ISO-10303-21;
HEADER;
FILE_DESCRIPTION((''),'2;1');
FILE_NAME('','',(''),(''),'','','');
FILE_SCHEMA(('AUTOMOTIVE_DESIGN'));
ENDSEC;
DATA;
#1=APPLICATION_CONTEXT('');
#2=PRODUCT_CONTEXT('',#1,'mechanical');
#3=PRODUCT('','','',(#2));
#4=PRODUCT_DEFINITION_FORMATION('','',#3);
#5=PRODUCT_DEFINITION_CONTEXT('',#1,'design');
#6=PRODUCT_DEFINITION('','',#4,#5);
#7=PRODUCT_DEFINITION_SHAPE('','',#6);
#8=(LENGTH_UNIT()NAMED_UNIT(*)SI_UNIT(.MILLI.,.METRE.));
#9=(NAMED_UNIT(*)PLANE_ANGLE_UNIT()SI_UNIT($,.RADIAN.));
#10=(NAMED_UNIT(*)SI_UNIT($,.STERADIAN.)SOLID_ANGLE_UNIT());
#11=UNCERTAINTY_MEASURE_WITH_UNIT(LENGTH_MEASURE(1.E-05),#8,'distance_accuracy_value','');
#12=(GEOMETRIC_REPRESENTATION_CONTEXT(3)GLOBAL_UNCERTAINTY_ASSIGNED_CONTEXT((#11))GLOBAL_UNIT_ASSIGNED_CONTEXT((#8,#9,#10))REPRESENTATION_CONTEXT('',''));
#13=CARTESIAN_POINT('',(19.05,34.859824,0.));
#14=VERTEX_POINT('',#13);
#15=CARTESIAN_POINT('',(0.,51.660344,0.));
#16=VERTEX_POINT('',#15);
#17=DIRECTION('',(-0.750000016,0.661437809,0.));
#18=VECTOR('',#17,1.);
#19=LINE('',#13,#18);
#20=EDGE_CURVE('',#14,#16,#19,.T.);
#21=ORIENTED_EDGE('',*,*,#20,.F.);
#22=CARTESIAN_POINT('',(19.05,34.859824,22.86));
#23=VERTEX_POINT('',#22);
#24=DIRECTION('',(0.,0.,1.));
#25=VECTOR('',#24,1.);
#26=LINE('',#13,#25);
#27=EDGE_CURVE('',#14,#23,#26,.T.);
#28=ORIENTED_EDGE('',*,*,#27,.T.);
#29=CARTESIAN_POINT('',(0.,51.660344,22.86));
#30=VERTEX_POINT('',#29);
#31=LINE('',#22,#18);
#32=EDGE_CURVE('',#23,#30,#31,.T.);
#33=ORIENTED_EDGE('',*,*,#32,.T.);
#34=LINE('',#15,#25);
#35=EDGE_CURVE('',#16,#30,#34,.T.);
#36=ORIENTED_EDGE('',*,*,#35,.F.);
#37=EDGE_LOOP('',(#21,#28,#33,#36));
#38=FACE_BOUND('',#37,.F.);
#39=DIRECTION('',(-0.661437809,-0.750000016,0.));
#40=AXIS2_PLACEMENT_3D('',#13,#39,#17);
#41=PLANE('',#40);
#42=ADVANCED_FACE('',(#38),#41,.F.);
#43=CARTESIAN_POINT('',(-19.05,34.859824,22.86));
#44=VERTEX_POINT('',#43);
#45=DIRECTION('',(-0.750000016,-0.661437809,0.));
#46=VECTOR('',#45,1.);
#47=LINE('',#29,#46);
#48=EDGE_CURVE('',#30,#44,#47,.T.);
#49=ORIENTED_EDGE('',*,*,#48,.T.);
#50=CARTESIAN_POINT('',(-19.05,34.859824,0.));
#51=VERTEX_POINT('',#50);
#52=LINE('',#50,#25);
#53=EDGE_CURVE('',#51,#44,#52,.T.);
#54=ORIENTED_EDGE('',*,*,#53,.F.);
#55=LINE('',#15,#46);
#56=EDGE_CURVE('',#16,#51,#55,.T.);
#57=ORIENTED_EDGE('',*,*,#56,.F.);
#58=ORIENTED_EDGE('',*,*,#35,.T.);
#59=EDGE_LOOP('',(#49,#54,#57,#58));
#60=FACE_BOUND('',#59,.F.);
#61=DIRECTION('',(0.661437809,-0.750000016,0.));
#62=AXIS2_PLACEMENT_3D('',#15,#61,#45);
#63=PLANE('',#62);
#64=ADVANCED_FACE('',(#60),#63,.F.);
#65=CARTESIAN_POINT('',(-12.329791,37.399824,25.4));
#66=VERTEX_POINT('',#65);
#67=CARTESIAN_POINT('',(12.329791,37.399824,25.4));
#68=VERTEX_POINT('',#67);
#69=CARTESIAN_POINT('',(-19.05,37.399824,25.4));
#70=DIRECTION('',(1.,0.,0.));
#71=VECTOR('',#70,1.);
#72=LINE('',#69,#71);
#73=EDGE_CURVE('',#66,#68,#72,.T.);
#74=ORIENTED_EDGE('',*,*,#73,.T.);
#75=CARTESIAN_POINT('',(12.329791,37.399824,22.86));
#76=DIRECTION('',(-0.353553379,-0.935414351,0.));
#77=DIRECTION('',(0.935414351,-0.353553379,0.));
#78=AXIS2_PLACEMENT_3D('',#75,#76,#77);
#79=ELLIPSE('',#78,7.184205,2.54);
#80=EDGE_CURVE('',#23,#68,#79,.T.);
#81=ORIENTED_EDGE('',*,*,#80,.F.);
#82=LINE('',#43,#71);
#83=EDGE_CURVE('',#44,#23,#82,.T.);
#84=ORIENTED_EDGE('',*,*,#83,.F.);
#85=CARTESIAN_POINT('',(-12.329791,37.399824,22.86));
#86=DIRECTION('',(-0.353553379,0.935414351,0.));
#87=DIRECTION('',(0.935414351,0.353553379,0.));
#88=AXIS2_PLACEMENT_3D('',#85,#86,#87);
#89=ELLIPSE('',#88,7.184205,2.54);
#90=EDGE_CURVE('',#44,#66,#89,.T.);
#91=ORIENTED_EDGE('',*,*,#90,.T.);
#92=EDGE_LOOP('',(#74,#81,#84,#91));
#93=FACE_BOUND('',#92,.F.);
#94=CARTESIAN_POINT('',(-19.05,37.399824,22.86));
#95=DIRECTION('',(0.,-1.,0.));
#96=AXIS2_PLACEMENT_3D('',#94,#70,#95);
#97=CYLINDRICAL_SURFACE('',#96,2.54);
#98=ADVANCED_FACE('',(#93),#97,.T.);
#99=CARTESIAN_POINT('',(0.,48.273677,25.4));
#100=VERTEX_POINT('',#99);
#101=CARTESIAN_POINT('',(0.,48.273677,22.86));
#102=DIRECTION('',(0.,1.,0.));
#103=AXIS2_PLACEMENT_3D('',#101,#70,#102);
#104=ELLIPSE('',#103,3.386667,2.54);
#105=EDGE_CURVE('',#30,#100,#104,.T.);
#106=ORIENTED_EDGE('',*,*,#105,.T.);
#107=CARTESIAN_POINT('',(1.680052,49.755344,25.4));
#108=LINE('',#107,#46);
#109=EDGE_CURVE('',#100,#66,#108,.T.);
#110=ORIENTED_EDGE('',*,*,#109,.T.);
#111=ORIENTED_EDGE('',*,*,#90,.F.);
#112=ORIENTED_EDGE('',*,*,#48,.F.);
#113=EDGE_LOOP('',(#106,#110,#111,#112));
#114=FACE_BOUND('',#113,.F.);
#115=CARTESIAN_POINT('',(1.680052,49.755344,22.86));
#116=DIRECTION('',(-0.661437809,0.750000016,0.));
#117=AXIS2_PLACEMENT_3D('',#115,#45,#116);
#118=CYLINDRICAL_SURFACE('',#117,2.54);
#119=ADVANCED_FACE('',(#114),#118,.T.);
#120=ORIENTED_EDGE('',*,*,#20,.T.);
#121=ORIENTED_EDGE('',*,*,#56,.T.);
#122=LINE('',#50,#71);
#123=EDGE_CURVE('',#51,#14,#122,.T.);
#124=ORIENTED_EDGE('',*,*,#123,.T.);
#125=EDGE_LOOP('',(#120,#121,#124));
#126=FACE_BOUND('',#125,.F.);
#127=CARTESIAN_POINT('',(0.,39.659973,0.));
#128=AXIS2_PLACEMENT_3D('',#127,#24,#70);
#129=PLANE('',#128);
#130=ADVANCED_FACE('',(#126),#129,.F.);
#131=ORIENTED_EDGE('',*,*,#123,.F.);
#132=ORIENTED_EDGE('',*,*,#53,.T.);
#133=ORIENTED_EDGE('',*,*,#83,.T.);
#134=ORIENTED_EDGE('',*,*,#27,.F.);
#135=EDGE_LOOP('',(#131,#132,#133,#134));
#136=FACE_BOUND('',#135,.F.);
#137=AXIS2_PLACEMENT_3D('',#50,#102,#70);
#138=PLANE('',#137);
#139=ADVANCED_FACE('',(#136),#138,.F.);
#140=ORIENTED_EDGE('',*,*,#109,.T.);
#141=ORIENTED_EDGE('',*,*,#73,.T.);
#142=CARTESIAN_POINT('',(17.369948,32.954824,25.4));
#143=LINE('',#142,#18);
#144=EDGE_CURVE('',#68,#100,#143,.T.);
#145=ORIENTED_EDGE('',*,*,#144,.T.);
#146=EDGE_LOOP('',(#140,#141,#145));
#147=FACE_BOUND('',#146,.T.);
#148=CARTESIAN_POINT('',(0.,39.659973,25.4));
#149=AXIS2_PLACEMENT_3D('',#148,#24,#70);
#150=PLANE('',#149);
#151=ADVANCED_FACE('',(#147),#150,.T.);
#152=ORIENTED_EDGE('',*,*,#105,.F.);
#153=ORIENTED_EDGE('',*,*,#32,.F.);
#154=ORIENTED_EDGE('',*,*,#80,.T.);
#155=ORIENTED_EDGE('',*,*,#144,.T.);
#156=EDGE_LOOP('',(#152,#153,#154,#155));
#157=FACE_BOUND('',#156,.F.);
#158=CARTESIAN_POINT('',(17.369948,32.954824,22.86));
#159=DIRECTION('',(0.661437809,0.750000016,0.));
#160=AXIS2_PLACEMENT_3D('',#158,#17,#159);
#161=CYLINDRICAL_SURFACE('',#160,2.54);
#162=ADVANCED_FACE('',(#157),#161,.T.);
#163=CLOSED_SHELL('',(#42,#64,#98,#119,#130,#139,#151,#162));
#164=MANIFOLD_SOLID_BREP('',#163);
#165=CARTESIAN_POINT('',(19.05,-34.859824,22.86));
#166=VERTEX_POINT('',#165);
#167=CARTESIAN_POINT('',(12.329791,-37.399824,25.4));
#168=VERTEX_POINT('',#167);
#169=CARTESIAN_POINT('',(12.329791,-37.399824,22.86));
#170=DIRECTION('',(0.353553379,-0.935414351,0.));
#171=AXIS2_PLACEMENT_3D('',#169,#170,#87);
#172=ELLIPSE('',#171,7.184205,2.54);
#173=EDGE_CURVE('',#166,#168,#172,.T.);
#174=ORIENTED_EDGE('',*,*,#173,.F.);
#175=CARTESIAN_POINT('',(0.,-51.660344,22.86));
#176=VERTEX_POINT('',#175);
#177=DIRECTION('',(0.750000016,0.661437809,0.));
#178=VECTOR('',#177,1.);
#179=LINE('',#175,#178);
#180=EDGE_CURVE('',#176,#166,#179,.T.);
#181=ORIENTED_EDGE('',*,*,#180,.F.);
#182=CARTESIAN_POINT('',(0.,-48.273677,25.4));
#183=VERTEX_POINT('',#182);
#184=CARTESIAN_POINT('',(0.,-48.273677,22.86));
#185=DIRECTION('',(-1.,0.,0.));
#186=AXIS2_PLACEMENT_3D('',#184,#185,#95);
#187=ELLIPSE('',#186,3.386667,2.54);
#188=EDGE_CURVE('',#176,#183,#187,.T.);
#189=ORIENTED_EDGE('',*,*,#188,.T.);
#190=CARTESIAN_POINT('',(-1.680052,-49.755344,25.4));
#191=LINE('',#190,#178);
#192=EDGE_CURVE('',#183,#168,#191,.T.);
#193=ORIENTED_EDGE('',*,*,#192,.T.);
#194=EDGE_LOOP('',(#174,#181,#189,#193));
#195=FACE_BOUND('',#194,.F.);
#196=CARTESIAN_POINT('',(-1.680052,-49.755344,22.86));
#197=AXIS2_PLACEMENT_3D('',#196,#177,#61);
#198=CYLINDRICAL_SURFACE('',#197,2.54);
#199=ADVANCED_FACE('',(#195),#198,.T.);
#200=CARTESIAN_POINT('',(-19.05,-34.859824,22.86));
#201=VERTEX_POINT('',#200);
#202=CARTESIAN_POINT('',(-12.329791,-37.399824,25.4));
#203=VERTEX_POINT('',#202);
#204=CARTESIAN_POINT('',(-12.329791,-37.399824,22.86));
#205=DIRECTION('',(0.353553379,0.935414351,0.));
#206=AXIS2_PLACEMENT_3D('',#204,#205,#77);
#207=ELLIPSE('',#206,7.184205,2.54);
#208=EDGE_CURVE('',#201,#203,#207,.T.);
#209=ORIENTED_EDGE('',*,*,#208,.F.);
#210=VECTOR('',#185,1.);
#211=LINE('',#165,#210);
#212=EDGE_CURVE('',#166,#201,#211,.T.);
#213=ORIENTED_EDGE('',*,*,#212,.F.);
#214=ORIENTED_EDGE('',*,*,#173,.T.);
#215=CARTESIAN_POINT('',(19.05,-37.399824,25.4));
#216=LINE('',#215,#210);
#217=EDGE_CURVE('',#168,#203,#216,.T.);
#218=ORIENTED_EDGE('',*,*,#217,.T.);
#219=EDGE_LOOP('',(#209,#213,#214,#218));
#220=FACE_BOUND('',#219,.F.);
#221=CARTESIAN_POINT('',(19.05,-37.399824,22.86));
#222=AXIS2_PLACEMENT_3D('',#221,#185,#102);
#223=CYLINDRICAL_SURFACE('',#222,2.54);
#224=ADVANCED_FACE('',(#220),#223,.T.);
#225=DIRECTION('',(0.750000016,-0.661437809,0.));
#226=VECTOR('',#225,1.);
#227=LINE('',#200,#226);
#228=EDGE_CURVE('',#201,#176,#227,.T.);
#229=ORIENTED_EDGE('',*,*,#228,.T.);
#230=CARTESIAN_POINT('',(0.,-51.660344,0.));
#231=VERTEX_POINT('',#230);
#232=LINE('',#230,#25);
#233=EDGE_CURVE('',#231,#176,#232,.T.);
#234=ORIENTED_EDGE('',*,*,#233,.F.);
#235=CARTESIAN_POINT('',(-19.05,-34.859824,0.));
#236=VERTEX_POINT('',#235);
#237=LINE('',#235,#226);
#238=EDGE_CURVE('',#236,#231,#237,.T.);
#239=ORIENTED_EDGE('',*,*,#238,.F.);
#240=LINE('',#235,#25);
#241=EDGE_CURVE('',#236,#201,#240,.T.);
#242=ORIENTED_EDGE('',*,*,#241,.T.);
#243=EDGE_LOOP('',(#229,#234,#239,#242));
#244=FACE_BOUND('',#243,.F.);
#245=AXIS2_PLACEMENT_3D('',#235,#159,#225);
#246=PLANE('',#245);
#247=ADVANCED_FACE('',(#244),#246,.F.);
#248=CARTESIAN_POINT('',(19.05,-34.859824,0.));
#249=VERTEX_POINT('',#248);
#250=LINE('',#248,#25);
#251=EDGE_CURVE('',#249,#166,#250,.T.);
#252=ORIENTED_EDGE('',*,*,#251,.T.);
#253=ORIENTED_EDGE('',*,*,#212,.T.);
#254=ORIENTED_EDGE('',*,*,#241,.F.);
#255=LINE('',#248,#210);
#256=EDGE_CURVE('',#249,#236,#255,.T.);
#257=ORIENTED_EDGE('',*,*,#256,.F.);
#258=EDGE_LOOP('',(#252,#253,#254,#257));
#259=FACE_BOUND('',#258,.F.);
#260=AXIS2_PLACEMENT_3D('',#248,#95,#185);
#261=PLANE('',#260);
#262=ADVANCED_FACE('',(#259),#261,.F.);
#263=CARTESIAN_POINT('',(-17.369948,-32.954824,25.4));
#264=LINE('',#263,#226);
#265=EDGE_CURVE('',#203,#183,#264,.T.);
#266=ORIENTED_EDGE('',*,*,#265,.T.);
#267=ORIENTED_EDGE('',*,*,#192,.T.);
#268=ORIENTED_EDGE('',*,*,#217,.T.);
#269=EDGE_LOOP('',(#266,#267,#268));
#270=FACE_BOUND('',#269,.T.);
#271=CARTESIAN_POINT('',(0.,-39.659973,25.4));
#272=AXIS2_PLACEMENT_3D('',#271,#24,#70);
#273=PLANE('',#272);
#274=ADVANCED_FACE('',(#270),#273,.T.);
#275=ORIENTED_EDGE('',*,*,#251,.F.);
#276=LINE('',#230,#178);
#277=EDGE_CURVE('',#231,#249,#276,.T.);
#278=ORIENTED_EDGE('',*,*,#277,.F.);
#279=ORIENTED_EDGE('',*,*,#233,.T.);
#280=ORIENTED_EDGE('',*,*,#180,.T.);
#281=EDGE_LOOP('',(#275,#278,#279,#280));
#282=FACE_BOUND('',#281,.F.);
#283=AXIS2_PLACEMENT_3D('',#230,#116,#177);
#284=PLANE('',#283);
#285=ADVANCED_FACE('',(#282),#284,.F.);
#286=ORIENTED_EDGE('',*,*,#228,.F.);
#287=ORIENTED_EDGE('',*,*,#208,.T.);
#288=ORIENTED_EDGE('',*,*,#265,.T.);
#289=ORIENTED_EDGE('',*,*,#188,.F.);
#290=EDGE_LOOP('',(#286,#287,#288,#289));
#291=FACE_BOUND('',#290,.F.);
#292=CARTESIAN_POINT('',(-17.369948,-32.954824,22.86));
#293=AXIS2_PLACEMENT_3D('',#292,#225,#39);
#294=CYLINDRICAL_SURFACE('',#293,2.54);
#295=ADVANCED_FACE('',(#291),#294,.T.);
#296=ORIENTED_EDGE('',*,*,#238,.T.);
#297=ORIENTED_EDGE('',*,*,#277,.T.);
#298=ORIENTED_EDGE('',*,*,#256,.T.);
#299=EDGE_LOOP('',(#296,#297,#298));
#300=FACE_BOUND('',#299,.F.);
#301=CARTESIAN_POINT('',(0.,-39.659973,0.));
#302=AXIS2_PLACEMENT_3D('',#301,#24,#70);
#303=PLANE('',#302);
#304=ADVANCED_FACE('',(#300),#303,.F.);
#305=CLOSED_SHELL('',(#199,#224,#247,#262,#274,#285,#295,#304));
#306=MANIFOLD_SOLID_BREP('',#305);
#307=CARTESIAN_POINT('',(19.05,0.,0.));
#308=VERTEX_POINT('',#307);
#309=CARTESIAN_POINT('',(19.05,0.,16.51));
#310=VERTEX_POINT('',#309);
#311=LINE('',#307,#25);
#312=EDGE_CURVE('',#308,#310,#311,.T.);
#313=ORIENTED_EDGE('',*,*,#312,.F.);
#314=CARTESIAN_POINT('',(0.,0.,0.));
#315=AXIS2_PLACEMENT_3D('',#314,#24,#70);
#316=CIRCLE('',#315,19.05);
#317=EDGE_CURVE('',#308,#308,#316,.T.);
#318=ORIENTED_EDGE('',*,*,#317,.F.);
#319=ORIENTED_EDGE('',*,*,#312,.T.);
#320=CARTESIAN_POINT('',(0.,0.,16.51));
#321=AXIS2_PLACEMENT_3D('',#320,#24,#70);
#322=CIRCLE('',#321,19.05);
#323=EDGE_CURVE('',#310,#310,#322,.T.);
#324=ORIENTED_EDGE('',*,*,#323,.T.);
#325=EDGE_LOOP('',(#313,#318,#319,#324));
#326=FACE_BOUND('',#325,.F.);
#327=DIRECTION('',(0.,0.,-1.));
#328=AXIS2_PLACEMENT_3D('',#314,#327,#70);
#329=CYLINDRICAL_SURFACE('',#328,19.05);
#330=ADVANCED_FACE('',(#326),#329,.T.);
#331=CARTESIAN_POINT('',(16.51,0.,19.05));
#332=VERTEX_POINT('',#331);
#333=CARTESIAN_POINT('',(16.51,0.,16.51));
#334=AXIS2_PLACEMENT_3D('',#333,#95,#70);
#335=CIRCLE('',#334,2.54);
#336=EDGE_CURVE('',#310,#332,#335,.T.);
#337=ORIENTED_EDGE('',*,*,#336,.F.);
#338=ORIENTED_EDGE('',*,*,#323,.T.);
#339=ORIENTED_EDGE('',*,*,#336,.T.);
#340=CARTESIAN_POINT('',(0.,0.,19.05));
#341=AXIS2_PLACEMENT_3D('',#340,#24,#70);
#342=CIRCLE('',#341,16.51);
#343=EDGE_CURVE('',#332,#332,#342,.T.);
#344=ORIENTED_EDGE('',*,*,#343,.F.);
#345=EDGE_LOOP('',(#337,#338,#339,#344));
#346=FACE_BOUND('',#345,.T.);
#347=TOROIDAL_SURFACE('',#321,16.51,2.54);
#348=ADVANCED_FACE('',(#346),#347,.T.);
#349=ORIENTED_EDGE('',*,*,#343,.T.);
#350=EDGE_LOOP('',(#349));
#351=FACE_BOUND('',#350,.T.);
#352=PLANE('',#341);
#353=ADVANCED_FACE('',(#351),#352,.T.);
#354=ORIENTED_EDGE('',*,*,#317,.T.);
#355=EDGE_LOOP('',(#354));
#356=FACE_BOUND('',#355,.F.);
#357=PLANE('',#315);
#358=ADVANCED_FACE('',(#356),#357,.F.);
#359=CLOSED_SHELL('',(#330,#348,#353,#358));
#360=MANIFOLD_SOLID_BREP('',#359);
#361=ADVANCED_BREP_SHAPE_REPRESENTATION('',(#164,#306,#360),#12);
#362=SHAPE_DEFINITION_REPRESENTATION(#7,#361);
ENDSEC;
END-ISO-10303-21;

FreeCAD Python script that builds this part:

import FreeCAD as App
import Part
import Sketcher

V = App.Vector
Q = App.Units.Quantity


def edges_at(feature, points):
    """Names of the edges that pass closest to the given points."""
    edges = feature.Shape.Edges
    near = lambda p: min(range(len(edges)), key=lambda i: edges[i].distToShape(Part.Vertex(*p))[0])
    return sorted({f"Edge{near(p) + 1}" for p in points})

doc = App.newDocument("Part")
body = doc.addObject("PartDesign::Body", "Body")
body.AllowCompound = True

# Sketch on XY plane
sketch1 = doc.addObject("Sketcher::SketchObject", "Sketch")
body.addObject(sketch1)
sketch1.AttachmentSupport = (doc.XY_Plane, [""])
sketch1.MapMode = "FlatFace"
sketch1.addGeometry(Part.LineSegment(V(0, 52, 0), V(-19, 35, 0)), False)
sketch1.addGeometry(Part.LineSegment(V(-19, 35, 0), V(19, 35, 0)), False)
sketch1.addGeometry(Part.LineSegment(V(19, 35, 0), V(0, 52, 0)), False)
sketch1.addGeometry(Part.LineSegment(V(19, -35, 0), V(-19, -35, 0)), False)
sketch1.addGeometry(Part.LineSegment(V(-19, -35, 0), V(0, -52, 0)), False)
sketch1.addGeometry(Part.LineSegment(V(0, -52, 0), V(19, -35, 0)), False)
sketch1.addConstraint(Sketcher.Constraint("Coincident", 0, 2, 1, 1))
sketch1.addConstraint(Sketcher.Constraint("Coincident", 1, 2, 2, 1))
sketch1.addConstraint(Sketcher.Constraint("Coincident", 2, 2, 0, 1))
sketch1.addConstraint(Sketcher.Constraint("Coincident", 3, 2, 4, 1))
sketch1.addConstraint(Sketcher.Constraint("Coincident", 4, 2, 5, 1))
sketch1.addConstraint(Sketcher.Constraint("Coincident", 5, 2, 3, 1))
sketch1.addConstraint(Sketcher.Constraint("Horizontal", 1))
sketch1.addConstraint(Sketcher.Constraint("Horizontal", 3))
sketch1.addConstraint(Sketcher.Constraint("Symmetric", 1, 2, 3, 2, -1, 1))
sketch1.addConstraint(Sketcher.Constraint("Symmetric", 2, 2, 4, 2, -1, 1))
sketch1.addConstraint(Sketcher.Constraint("PointOnObject", 2, 2, -2))
sketch1.addConstraint(Sketcher.Constraint("Parallel", 0, 5))
sketch1.addConstraint(Sketcher.Constraint("Vertical", 0, 2, 3, 2))
sketch1.addConstraint(Sketcher.Constraint("Distance", 0, Q("1 in")))
sketch1.addConstraint(Sketcher.Constraint("DistanceX", 1, 1, 1, 2, Q("1.5 in")))
sketch1.addConstraint(Sketcher.Constraint("DistanceY", 3, 2, 0, 2, 69.719648))
pad1 = doc.addObject("PartDesign::Pad", "Pad")
body.addObject(pad1)
pad1.Profile = sketch1
pad1.Length = Q("1 in")
doc.recompute()

fillet = doc.addObject("PartDesign::Fillet", "Fillet")
body.addObject(fillet)
fillet.Base = (pad1, edges_at(pad1, [
    (0, 34.86, 25.4),
    (9.525, 43.26, 25.4),
    (-9.525, 43.26, 25.4),
    (-9.525, -43.26, 25.4),
    (9.525, -43.26, 25.4),
    (0, -34.86, 25.4),
]))
fillet.Radius = Q("0.1 in")
body2 = doc.addObject("PartDesign::Body", "Body001")

# Sketch on XY plane
sketch2 = doc.addObject("Sketcher::SketchObject", "Sketch001")
body2.addObject(sketch2)
sketch2.AttachmentSupport = (doc.getObject("XY_Plane001"), [""])
sketch2.MapMode = "FlatFace"
sketch2.addGeometry(Part.Circle(V(0, 0, 0), V(0, 0, 1), 19), False)
sketch2.addConstraint(Sketcher.Constraint("Coincident", 0, 3, -1, 1))
sketch2.addConstraint(Sketcher.Constraint("Diameter", 0, Q("1.5 in")))
pad2 = doc.addObject("PartDesign::Pad", "Pad001")
body2.addObject(pad2)
pad2.Profile = sketch2
pad2.Length = Q("0.75 in")
doc.recompute()

fillet2 = doc.addObject("PartDesign::Fillet", "Fillet001")
body2.addObject(fillet2)
fillet2.Base = (pad2, edges_at(pad2, [(-19.05, 0, 19.05)]))
fillet2.Radius = Q("0.1 in")

doc.recompute()
